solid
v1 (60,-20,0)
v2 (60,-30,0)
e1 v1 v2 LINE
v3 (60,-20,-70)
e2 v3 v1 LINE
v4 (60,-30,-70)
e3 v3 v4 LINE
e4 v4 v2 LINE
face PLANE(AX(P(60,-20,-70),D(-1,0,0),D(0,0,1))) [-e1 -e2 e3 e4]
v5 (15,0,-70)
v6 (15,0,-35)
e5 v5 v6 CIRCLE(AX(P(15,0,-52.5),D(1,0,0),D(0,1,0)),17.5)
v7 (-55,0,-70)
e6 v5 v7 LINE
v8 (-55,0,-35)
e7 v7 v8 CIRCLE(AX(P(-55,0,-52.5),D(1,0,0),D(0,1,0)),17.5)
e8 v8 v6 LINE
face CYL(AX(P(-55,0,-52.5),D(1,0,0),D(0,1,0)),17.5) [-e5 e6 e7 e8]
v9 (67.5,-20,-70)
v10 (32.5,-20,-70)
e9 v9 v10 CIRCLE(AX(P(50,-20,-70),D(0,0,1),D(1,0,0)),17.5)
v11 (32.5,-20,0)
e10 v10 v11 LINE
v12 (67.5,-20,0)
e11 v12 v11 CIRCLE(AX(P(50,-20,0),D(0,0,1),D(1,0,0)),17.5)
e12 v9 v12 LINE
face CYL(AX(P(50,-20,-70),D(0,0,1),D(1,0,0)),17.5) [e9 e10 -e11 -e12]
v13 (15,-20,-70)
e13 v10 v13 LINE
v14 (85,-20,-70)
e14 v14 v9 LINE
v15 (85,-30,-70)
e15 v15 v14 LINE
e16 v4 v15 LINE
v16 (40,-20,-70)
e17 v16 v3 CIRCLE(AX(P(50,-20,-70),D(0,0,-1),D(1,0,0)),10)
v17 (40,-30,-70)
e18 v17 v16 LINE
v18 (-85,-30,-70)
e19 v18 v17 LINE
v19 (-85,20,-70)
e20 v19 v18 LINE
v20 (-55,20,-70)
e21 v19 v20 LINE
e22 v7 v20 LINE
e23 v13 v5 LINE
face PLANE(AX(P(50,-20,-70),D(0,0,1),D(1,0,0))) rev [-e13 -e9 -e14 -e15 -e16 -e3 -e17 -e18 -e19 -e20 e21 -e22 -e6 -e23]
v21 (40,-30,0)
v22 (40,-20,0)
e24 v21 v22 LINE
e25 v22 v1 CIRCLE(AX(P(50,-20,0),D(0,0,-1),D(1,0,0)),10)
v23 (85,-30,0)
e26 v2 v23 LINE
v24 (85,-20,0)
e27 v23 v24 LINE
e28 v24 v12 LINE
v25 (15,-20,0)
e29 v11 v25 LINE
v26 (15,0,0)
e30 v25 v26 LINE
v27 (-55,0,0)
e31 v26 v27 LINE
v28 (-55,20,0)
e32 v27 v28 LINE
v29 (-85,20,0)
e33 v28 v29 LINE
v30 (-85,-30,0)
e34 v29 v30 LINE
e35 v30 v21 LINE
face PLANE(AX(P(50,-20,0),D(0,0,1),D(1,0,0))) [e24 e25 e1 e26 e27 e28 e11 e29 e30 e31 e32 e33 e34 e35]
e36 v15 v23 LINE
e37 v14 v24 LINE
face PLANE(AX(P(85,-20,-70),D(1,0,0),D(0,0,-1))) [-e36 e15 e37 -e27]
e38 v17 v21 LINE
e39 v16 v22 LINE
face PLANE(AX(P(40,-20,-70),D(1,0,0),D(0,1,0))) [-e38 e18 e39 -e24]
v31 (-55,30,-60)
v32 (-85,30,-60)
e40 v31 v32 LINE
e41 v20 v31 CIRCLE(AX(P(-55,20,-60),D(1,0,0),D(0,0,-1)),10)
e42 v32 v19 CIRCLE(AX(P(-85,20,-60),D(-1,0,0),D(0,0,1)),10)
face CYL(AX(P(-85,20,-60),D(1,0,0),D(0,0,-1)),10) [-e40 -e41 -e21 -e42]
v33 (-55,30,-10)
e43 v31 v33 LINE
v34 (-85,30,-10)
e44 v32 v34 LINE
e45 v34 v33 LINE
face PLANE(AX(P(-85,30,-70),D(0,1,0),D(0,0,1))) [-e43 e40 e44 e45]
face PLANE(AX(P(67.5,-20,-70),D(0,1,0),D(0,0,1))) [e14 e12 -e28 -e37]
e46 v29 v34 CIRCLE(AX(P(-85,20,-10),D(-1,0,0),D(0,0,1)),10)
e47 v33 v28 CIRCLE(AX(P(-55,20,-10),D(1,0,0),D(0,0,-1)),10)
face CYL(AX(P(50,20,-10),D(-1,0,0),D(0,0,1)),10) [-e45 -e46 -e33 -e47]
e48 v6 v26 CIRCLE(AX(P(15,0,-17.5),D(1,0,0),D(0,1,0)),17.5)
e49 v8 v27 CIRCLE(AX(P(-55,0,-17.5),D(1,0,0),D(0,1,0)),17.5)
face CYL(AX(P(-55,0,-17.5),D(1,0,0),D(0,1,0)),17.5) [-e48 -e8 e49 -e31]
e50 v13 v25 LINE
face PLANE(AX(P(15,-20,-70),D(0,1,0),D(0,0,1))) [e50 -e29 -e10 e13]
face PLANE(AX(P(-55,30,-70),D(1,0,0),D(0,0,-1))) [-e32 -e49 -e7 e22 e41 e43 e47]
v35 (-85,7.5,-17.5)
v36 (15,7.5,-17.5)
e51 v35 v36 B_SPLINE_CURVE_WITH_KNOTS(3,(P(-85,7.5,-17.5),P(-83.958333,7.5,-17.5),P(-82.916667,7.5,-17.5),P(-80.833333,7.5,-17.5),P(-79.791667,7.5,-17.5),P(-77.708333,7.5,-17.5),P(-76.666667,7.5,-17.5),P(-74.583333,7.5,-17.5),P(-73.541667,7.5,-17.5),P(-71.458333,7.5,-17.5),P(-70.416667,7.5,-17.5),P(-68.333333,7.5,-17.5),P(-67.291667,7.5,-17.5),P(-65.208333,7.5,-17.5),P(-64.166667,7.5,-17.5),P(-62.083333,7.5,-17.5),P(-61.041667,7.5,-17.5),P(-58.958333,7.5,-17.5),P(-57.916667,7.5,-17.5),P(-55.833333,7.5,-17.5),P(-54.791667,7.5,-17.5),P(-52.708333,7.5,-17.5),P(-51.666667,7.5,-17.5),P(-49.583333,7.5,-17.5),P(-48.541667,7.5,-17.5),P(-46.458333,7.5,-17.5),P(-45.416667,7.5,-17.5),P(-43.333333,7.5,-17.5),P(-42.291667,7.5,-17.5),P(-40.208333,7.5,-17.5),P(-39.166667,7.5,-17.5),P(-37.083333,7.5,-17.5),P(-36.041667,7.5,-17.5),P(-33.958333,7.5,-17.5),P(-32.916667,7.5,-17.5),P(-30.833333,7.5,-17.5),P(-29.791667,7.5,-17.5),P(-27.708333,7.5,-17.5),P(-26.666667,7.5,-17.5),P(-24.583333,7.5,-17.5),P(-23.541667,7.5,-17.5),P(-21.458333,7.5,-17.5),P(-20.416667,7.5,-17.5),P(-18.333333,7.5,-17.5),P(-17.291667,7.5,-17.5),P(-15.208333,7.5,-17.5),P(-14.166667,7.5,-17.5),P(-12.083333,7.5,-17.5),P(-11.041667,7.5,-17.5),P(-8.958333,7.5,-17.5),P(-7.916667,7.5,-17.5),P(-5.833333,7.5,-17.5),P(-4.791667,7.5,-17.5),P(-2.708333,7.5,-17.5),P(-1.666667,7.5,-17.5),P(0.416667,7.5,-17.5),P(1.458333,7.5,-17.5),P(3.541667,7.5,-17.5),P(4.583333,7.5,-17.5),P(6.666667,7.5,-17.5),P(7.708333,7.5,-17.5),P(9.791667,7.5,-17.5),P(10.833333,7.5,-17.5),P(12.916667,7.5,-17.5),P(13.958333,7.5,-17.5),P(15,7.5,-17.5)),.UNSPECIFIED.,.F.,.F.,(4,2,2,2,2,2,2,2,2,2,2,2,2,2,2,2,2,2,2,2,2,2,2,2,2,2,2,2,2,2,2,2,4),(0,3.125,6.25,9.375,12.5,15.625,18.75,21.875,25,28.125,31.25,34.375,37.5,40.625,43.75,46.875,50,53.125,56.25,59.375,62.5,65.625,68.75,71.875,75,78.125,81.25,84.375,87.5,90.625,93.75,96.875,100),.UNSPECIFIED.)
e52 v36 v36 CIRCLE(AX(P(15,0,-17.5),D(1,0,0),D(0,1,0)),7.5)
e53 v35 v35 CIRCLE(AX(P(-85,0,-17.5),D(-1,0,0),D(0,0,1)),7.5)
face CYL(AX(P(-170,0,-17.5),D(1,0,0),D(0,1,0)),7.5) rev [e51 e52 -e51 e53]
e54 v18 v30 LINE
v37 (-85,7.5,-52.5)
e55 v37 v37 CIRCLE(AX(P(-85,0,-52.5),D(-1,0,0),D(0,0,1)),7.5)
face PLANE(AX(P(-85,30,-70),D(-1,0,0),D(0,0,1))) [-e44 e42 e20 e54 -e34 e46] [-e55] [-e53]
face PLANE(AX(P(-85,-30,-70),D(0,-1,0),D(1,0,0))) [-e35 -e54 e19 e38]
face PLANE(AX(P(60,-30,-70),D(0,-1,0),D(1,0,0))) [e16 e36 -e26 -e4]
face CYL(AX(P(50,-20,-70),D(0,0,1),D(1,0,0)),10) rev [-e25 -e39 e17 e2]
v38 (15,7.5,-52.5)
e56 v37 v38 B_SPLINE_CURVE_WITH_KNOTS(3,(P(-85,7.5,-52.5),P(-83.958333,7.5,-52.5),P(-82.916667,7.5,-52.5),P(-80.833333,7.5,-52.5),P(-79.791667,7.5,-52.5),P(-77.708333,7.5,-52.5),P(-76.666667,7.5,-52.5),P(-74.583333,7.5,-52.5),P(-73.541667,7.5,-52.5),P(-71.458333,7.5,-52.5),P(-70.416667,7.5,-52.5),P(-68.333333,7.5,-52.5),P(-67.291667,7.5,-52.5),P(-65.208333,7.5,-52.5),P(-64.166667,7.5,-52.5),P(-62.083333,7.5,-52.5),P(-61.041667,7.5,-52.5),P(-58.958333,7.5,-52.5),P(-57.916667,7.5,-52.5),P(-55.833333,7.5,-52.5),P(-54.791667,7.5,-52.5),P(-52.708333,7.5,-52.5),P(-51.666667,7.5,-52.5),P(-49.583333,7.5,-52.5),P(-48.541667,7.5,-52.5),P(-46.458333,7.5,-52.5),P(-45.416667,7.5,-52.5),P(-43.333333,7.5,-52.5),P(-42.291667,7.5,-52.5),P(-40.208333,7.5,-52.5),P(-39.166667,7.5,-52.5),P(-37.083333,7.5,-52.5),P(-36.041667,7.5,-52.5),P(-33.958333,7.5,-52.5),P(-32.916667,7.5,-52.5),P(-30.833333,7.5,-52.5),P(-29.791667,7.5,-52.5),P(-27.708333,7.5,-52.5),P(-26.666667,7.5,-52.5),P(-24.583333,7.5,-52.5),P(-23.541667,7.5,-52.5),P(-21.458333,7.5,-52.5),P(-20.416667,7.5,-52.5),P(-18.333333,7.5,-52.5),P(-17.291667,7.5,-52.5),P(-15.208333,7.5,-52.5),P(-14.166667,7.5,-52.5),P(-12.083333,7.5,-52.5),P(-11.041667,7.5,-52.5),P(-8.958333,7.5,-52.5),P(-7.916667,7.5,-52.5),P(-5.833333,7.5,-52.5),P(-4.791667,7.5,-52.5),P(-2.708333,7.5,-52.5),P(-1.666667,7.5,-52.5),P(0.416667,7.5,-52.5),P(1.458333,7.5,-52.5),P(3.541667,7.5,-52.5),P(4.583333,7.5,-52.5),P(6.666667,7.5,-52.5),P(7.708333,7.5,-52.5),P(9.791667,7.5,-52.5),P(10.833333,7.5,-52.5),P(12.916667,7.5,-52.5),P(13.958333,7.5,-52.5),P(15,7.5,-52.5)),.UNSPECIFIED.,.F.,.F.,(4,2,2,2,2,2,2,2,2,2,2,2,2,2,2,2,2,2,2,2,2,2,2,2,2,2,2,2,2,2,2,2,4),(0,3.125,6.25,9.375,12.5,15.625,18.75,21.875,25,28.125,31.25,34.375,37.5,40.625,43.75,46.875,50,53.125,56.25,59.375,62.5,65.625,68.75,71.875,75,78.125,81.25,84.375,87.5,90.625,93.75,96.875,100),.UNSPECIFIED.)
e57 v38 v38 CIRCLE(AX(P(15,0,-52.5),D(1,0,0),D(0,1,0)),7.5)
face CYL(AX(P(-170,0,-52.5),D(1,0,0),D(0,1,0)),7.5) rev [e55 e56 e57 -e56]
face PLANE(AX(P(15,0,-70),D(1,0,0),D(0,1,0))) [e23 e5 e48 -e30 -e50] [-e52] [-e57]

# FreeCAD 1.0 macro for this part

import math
import FreeCAD as App
import Part
import Sketcher
from FreeCAD import Vector
Q = App.Units.Quantity


def edges_at(feature, points):
    """Names of the edges that pass closest to the given points."""
    edges = feature.Shape.Edges
    near = lambda p: min(range(len(edges)), key=lambda i: edges[i].distToShape(Part.Vertex(*p))[0])
    return sorted({f"Edge{near(p) + 1}" for p in points})

doc = App.newDocument("Part")
body = doc.addObject("PartDesign::Body", "Body")

sketch1 = body.newObject("Sketcher::SketchObject", "Sketch")
sketch1.AttachmentSupport = (doc.getObject("XY_Plane"), [""])
sketch1.MapMode = "FlatFace"
sketch1.addGeometry(Part.LineSegment(Vector(85, -20, 0), Vector(67.5, -20, 0)), False)
sketch1.addGeometry(Part.ArcOfCircle(Part.Circle(Vector(50, -20, 0), Vector(0, 0, 1), 17.5), math.radians(0), math.radians(180)), False)
sketch1.addGeometry(Part.LineSegment(Vector(32.5, -20, 0), Vector(15, -20, 0)), False)
sketch1.addGeometry(Part.LineSegment(Vector(15, -20, 0), Vector(15, 0, 0)), False)
sketch1.addGeometry(Part.LineSegment(Vector(15, 0, 0), Vector(-55, 0, 0)), False)
sketch1.addGeometry(Part.LineSegment(Vector(-55, 0, 0), Vector(-55, 30, 0)), False)
sketch1.addGeometry(Part.LineSegment(Vector(-55, 30, 0), Vector(-85, 30, 0)), False)
sketch1.addGeometry(Part.LineSegment(Vector(-85, 30, 0), Vector(-85, -30, 0)), False)
sketch1.addGeometry(Part.LineSegment(Vector(-85, -30, 0), Vector(40, -30, 0)), False)
sketch1.addGeometry(Part.LineSegment(Vector(40, -30, 0), Vector(40, -20, 0)), False)
sketch1.addGeometry(Part.ArcOfCircle(Part.Circle(Vector(50, -20, 0), Vector(0, 0, 1), 10), math.radians(0), math.radians(180)), False)
sketch1.addGeometry(Part.LineSegment(Vector(60, -20, 0), Vector(60, -30, 0)), False)
sketch1.addGeometry(Part.LineSegment(Vector(60, -30, 0), Vector(85, -30, 0)), False)
sketch1.addGeometry(Part.LineSegment(Vector(85, -30, 0), Vector(85, -20, 0)), False)
sketch1.addConstraint(Sketcher.Constraint("Coincident", 0, 2, 1, 1))
sketch1.addConstraint(Sketcher.Constraint("Coincident", 1, 2, 2, 1))
sketch1.addConstraint(Sketcher.Constraint("Coincident", 2, 2, 3, 1))
sketch1.addConstraint(Sketcher.Constraint("Coincident", 3, 2, 4, 1))
sketch1.addConstraint(Sketcher.Constraint("Coincident", 4, 2, 5, 1))
sketch1.addConstraint(Sketcher.Constraint("Coincident", 5, 2, 6, 1))
sketch1.addConstraint(Sketcher.Constraint("Coincident", 6, 2, 7, 1))
sketch1.addConstraint(Sketcher.Constraint("Coincident", 7, 2, 8, 1))
sketch1.addConstraint(Sketcher.Constraint("Coincident", 8, 2, 9, 1))
sketch1.addConstraint(Sketcher.Constraint("Tangent", 9, 2, 10, 2))
sketch1.addConstraint(Sketcher.Constraint("Tangent", 10, 1, 11, 1))
sketch1.addConstraint(Sketcher.Constraint("Coincident", 11, 2, 12, 1))
sketch1.addConstraint(Sketcher.Constraint("Coincident", 12, 2, 13, 1))
sketch1.addConstraint(Sketcher.Constraint("Coincident", 13, 2, 0, 1))
sketch1.addConstraint(Sketcher.Constraint("Horizontal", 0))
sketch1.addConstraint(Sketcher.Constraint("Horizontal", 2))
sketch1.addConstraint(Sketcher.Constraint("Vertical", 3))
sketch1.addConstraint(Sketcher.Constraint("Horizontal", 4))
sketch1.addConstraint(Sketcher.Constraint("Vertical", 5))
sketch1.addConstraint(Sketcher.Constraint("Horizontal", 6))
sketch1.addConstraint(Sketcher.Constraint("Vertical", 7))
sketch1.addConstraint(Sketcher.Constraint("Horizontal", 8))
sketch1.addConstraint(Sketcher.Constraint("Vertical", 9))
sketch1.addConstraint(Sketcher.Constraint("Vertical", 11))
sketch1.addConstraint(Sketcher.Constraint("Horizontal", 12))
sketch1.addConstraint(Sketcher.Constraint("Vertical", 13))
sketch1.addConstraint(Sketcher.Constraint("Coincident", 10, 3, 1, 3))
sketch1.addConstraint(Sketcher.Constraint("Symmetric", 6, 2, 12, 2, -1, 1))
sketch1.addConstraint(Sketcher.Constraint("PointOnObject", 3, 2, -1))
sketch1.addConstraint(Sketcher.Constraint("Horizontal", 10, 3, 0, 2))
sketch1.addConstraint(Sketcher.Constraint("Horizontal", 0, 2, 1, 2))
sketch1.addConstraint(Sketcher.Constraint("Horizontal", 8, 2, 11, 2))
sketch1.addConstraint(Sketcher.Constraint("Equal", 0, 2))
sketch1.addConstraint(Sketcher.Constraint("Equal", 6, 5))
sketch1.addConstraint(Sketcher.Constraint("Radius", 10, Q("10 mm")))
sketch1.addConstraint(Sketcher.Constraint("Radius", 1, Q("17.5 mm")))
sketch1.addConstraint(Sketcher.Constraint("DistanceX", 4, 2, 4, 1, Q("70 mm")))
sketch1.addConstraint(Sketcher.Constraint("DistanceX", 6, 2, 6, 1, Q("30 mm")))
sketch1.addConstraint(Sketcher.Constraint("DistanceX", 8, 1, 8, 2, Q("125 mm")))
sketch1.addConstraint(Sketcher.Constraint("DistanceY", 3, 1, 3, 2, Q("20 mm")))
pad1 = body.newObject("PartDesign::Pad", "Pad")
pad1.Profile = sketch1
pad1.Length = 70
pad1.Reversed = True
doc.recompute()

fillet = body.newObject("PartDesign::Fillet", "Fillet")
fillet.Base = (pad1, edges_at(pad1, [(-70, 30, 0)]))
fillet.Radius = 10
doc.recompute()

fillet2 = body.newObject("PartDesign::Fillet", "Fillet001")
fillet2.Base = (fillet, edges_at(fillet, [(-70, 30, -70)]))
fillet2.Radius = 10

sketch2 = body.newObject("Sketcher::SketchObject", "Sketch001")
sketch2.AttachmentSupport = (doc.getObject("YZ_Plane"), [""])
sketch2.MapMode = "FlatFace"
sketch2.AttachmentOffset = App.Placement(Vector(0, 0, 15), App.Rotation())
sketch2.addGeometry(Part.ArcOfCircle(Part.Circle(Vector(0, -17.5, 0), Vector(0, 0, 1), 17.5), math.radians(-90), math.radians(90)), False)
sketch2.addGeometry(Part.LineSegment(Vector(0, 0, 0), Vector(0, -35, 0)), False)
sketch2.addGeometry(Part.ArcOfCircle(Part.Circle(Vector(0, -52.5, 0), Vector(0, 0, 1), 17.5), math.radians(-90), math.radians(90)), False)
sketch2.addGeometry(Part.LineSegment(Vector(0, -35, 0), Vector(0, -70, 0)), False)
sketch2.addConstraint(Sketcher.Constraint("Coincident", 0, 1, 1, 2))
sketch2.addConstraint(Sketcher.Constraint("Coincident", 1, 1, 0, 2))
sketch2.addConstraint(Sketcher.Constraint("Coincident", 2, 1, 3, 2))
sketch2.addConstraint(Sketcher.Constraint("Coincident", 3, 1, 2, 2))
sketch2.addConstraint(Sketcher.Constraint("Vertical", 1))
sketch2.addConstraint(Sketcher.Constraint("Vertical", 3))
sketch2.addConstraint(Sketcher.Constraint("Coincident", 1, 1, -1, 1))
sketch2.addConstraint(Sketcher.Constraint("Coincident", 3, 1, 0, 1))
sketch2.addConstraint(Sketcher.Constraint("Equal", 0, 2))
sketch2.addConstraint(Sketcher.Constraint("PointOnObject", 0, 3, -2))
sketch2.addConstraint(Sketcher.Constraint("PointOnObject", 2, 3, -2))
sketch2.addConstraint(Sketcher.Constraint("Radius", 0, Q("17.5 mm")))
pad2 = body.newObject("PartDesign::Pad", "Pad001")
pad2.Profile = sketch2
pad2.Length = 70
pad2.Reversed = True

sketch3 = body.newObject("Sketcher::SketchObject", "Sketch002")
sketch3.AttachmentSupport = (doc.getObject("YZ_Plane"), [""])
sketch3.MapMode = "FlatFace"
sketch3.AttachmentOffset = App.Placement(Vector(0, 0, 15), App.Rotation())
sketch3.addGeometry(Part.Circle(Vector(0, -17.5, 0), Vector(0, 0, 1), 7.5), False)
sketch3.addGeometry(Part.Circle(Vector(0, -52.5, 0), Vector(0, 0, 1), 7.5), False)
sketch3.addConstraint(Sketcher.Constraint("Equal", 0, 1))
sketch3.addConstraint(Sketcher.Constraint("PointOnObject", 0, 3, -2))
sketch3.addConstraint(Sketcher.Constraint("PointOnObject", 1, 3, -2))
sketch3.addConstraint(Sketcher.Constraint("Diameter", 0, Q("15 mm")))
sketch3.addConstraint(Sketcher.Constraint("DistanceY", 1, 3, 0, 3, Q("35 mm")))
sketch3.addConstraint(Sketcher.Constraint("DistanceY", 0, 3, -1, 1, Q("17.5 mm")))
pocket1 = body.newObject("PartDesign::Pocket", "Pocket")
pocket1.Profile = sketch3
pocket1.Length = 185

doc.recompute()
